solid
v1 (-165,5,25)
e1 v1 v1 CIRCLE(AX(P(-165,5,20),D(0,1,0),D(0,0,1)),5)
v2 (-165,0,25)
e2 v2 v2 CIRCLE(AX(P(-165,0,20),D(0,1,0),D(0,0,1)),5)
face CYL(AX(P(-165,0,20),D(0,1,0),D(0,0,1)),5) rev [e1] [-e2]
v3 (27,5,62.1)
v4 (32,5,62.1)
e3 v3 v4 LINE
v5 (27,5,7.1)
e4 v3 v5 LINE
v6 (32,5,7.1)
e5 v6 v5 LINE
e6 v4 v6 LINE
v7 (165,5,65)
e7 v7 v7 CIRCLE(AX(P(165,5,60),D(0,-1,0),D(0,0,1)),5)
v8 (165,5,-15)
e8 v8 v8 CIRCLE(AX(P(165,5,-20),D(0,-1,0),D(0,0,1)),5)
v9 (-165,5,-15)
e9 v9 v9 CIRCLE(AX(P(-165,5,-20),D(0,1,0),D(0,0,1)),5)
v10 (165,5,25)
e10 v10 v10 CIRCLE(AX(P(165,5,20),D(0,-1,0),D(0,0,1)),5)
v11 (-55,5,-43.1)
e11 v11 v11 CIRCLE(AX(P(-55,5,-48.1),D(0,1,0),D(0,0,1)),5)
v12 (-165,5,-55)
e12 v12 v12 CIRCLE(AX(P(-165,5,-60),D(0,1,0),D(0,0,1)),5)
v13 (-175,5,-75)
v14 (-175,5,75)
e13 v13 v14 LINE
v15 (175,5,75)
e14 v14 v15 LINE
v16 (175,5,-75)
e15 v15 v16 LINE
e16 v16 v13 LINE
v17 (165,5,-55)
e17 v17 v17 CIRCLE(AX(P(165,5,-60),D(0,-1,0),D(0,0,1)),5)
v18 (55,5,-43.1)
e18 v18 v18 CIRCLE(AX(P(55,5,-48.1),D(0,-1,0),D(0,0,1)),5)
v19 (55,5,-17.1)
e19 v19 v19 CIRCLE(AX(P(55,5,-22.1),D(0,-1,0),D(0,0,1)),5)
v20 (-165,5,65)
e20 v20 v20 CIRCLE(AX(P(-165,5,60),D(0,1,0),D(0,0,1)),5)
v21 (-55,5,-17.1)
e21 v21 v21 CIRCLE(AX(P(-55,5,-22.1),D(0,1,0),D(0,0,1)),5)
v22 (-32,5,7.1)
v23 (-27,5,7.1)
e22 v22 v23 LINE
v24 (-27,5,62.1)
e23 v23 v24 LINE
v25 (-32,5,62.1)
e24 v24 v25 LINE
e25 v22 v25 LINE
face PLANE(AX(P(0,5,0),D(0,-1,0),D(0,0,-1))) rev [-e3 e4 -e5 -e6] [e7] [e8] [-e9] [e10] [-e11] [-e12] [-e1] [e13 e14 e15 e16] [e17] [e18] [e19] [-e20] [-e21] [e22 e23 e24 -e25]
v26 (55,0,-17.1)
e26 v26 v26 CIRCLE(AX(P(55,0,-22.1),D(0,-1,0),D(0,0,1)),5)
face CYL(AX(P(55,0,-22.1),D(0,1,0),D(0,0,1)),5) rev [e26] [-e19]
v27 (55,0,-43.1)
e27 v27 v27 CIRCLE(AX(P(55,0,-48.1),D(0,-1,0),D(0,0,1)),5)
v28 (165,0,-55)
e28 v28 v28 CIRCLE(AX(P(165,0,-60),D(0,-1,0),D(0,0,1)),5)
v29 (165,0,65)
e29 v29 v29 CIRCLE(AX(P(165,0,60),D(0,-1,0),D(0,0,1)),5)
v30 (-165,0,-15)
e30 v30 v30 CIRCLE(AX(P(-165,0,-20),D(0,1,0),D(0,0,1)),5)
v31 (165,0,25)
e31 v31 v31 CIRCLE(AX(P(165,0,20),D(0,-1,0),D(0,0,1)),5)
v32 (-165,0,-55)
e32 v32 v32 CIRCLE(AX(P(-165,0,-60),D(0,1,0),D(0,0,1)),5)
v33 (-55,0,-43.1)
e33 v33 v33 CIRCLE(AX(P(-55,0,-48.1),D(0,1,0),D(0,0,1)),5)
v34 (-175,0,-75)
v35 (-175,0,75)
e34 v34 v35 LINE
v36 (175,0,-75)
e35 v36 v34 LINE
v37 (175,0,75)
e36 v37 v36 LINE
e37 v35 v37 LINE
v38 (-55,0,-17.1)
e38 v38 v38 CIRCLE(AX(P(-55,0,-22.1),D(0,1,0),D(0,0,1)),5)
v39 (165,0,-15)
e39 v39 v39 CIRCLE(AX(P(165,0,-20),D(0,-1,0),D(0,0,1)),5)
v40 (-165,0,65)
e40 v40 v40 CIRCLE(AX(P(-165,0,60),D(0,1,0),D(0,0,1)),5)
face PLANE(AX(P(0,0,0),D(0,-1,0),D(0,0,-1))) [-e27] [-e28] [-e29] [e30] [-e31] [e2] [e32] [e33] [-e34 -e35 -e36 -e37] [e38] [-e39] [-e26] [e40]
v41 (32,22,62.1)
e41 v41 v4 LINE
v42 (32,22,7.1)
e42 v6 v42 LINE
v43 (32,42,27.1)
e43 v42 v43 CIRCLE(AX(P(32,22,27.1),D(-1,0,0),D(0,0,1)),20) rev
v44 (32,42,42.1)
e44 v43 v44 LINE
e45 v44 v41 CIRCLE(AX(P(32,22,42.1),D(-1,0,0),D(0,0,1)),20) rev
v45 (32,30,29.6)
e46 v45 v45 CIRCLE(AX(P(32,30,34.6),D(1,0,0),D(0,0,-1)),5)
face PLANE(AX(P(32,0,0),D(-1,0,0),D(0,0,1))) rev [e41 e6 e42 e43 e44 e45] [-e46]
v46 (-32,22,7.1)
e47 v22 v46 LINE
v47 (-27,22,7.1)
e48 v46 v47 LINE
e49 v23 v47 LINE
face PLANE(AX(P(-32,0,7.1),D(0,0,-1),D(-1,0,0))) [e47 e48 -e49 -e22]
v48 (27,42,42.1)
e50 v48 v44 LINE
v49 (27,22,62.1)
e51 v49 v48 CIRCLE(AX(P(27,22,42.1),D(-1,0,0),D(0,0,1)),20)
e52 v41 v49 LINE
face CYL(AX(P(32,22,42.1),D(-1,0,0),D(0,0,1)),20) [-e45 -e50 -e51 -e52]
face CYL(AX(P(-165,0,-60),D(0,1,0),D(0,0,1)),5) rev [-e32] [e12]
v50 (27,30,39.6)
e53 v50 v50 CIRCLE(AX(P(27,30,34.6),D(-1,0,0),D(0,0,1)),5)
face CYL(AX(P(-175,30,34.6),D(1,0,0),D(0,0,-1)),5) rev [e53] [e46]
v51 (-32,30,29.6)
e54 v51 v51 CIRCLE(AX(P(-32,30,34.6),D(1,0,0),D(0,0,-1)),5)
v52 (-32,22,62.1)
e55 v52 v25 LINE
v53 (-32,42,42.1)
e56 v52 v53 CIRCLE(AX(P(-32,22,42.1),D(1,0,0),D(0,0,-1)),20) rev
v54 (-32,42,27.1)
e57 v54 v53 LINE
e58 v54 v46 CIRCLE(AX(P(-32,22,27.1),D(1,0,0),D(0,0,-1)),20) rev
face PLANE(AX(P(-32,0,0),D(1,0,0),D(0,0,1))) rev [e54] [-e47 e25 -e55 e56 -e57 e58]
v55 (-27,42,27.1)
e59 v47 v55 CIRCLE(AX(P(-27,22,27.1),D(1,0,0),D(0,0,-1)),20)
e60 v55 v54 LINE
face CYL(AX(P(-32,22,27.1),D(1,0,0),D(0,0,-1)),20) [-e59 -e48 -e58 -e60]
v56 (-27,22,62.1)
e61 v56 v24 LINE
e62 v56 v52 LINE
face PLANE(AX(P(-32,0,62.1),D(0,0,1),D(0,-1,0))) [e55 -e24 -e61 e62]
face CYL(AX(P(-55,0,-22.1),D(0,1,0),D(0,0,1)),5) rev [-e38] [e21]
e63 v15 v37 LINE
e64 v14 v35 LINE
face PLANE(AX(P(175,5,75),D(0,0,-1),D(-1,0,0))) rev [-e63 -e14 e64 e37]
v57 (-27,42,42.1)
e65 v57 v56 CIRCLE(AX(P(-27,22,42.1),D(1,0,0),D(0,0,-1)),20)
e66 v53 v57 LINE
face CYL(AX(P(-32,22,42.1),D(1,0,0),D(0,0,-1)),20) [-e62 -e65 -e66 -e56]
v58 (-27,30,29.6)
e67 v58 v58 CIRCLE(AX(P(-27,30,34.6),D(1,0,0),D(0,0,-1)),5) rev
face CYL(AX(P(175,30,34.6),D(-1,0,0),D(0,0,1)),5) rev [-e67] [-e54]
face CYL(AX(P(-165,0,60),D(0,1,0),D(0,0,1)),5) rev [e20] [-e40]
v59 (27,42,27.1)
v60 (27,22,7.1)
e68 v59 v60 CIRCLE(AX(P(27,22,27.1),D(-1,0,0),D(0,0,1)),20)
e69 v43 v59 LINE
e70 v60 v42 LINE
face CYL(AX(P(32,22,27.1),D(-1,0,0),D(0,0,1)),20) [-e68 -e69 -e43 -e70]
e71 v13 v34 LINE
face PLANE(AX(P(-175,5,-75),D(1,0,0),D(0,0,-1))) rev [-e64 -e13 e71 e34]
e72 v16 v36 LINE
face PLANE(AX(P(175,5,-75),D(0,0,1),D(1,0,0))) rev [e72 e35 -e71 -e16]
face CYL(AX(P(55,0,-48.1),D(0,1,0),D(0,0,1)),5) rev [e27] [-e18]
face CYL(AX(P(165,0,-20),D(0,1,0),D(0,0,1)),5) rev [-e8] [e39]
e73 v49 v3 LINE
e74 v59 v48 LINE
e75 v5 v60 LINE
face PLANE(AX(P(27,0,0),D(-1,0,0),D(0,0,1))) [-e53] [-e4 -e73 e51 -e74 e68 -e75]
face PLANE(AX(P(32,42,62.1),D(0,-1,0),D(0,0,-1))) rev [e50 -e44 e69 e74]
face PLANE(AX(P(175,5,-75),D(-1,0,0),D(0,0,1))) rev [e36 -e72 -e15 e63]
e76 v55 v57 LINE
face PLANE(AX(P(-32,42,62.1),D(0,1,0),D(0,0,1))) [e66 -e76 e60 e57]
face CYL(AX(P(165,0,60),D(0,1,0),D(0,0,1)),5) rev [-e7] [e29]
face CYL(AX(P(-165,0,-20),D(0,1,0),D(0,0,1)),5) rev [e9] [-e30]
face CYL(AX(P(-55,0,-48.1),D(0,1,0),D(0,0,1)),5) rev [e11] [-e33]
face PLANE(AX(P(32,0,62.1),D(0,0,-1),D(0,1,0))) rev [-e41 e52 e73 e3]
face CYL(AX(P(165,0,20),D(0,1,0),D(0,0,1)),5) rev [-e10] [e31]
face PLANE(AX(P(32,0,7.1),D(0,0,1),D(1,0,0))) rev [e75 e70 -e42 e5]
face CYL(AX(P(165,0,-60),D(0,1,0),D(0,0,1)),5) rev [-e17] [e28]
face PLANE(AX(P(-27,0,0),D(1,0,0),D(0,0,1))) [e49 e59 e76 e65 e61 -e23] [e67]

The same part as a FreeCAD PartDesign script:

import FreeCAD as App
import Part
import Sketcher

V = App.Vector
Q = App.Units.Quantity


def edges_at(feature, points):
    """Names of the edges that pass closest to the given points."""
    edges = feature.Shape.Edges
    near = lambda p: min(range(len(edges)), key=lambda i: edges[i].distToShape(Part.Vertex(*p))[0])
    return sorted({f"Edge{near(p) + 1}" for p in points})

doc = App.newDocument("Part")
params = doc.addObject("Spreadsheet::Sheet", "Params")
for row, (alias, value) in enumerate([
    ("sketch1_width", "350 mm"),
    ("sketch1_height", "150 mm"),
    ("pad1_length", "5 mm"),
    ("sketch2_width", "42 mm"),
    ("sketch2_height", "55 mm"),
    ("pad2_length", "5 mm"),
    ("sketch3_diameter", "10 mm"),
    ("fillet_radius", "20 mm"),
    ("fillet2_radius", "20 mm"),
    ("sketch4_diameter", "10 mm"),
    ("sketch5_diameter", "10 mm"),
], start=1):
    params.set(f"A{row}", alias)
    params.set(f"B{row}", "=" + value)
    params.setAlias(f"B{row}", alias)

body = doc.addObject("PartDesign::Body", "Body")

sketch1 = doc.addObject("Sketcher::SketchObject", "Sketch")
body.addObject(sketch1)
sketch1.AttachmentSupport = (doc.XZ_Plane, [""])
sketch1.MapMode = "FlatFace"
sketch1.addGeometry([
    Part.LineSegment(V(-175, -75, 0), V(-175, 75, 0)),
    Part.LineSegment(V(-175, 75, 0), V(175, 75, 0)),
    Part.LineSegment(V(175, 75, 0), V(175, -75, 0)),
    Part.LineSegment(V(175, -75, 0), V(-175, -75, 0)),
], False)
sketch1.addConstraint([
    Sketcher.Constraint("Coincident", 0, 2, 1, 1),
    Sketcher.Constraint("Coincident", 1, 2, 2, 1),
    Sketcher.Constraint("Coincident", 2, 2, 3, 1),
    Sketcher.Constraint("Coincident", 3, 2, 0, 1),
    Sketcher.Constraint("Vertical", 0),
    Sketcher.Constraint("Horizontal", 1),
    Sketcher.Constraint("Vertical", 2),
    Sketcher.Constraint("Horizontal", 3),
    Sketcher.Constraint("Symmetric", 0, 2, 2, 2, -1, 1),
    Sketcher.Constraint("DistanceX", 1, 1, 1, 2, Q("350 mm")),
    Sketcher.Constraint("DistanceY", 0, 1, 0, 2, Q("150 mm")),
])
sketch1.setExpression("Constraints[9]", "Params.sketch1_width")
sketch1.setExpression("Constraints[10]", "Params.sketch1_height")
pad1 = doc.addObject("PartDesign::Pad", "Pad")
body.addObject(pad1)
pad1.Profile = sketch1
pad1.setExpression("Length", "Params.pad1_length")
pad1.Reversed = True

sketch2 = doc.addObject("Sketcher::SketchObject", "Sketch001")
body.addObject(sketch2)
sketch2.AttachmentSupport = (doc.YZ_Plane, [""])
sketch2.MapMode = "FlatFace"
sketch2.AttachmentOffset = App.Placement(V(0, 0, 27), App.Rotation())
sketch2.addGeometry([
    Part.LineSegment(V(42, 62, 0), V(0, 62, 0)),
    Part.LineSegment(V(0, 62, 0), V(0, 7, 0)),
    Part.LineSegment(V(0, 7, 0), V(42, 7, 0)),
    Part.LineSegment(V(42, 7, 0), V(42, 62, 0)),
], False)
sketch2.addConstraint([
    Sketcher.Constraint("Coincident", 0, 2, 1, 1),
    Sketcher.Constraint("Coincident", 1, 2, 2, 1),
    Sketcher.Constraint("Coincident", 2, 2, 3, 1),
    Sketcher.Constraint("Coincident", 3, 2, 0, 1),
    Sketcher.Constraint("Horizontal", 0),
    Sketcher.Constraint("Vertical", 1),
    Sketcher.Constraint("Horizontal", 2),
    Sketcher.Constraint("Vertical", 3),
    Sketcher.Constraint("PointOnObject", 0, 2, -2),
    Sketcher.Constraint("DistanceX", 0, 2, 0, 1, Q("42 mm")),
    Sketcher.Constraint("DistanceY", 1, 2, 1, 1, Q("55 mm")),
    Sketcher.Constraint("DistanceY", -1, 1, 0, 2, Q("62.1 mm")),
])
sketch2.setExpression("Constraints[9]", "Params.sketch2_width")
sketch2.setExpression("Constraints[10]", "Params.sketch2_height")
pad2 = doc.addObject("PartDesign::Pad", "Pad001")
body.addObject(pad2)
pad2.Profile = sketch2
pad2.setExpression("Length", "Params.pad2_length")

sketch3 = doc.addObject("Sketcher::SketchObject", "Sketch002")
body.addObject(sketch3)
sketch3.AttachmentSupport = (doc.YZ_Plane, [""])
sketch3.MapMode = "FlatFace"
sketch3.AttachmentOffset = App.Placement(V(0, 0, 32), App.Rotation())
sketch3.addGeometry(Part.Circle(V(30, 35, 0), V(0, 0, 1), 5), False)
sketch3.addConstraint([
    Sketcher.Constraint("Diameter", 0, Q("10 mm")),
    Sketcher.Constraint("DistanceX", -1, 1, 0, 3, Q("30 mm")),
    Sketcher.Constraint("DistanceY", -1, 1, 0, 3, Q("34.6 mm")),
])
sketch3.setExpression("Constraints[0]", "Params.sketch3_diameter")
pocket1 = doc.addObject("PartDesign::Pocket", "Pocket")
body.addObject(pocket1)
pocket1.Profile = sketch3
pocket1.Type = "ThroughAll"
doc.recompute()

fillet = doc.addObject("PartDesign::Fillet", "Fillet")
body.addObject(fillet)
fillet.Base = (pocket1, edges_at(pocket1, [(29.5, 42, 62.1), (29.5, 42, 7.1)]))
fillet.setExpression("Radius", "Params.fillet_radius")
doc.recompute()

mirrored = doc.addObject("PartDesign::Mirrored", "Mirrored")
body.addObject(mirrored)
mirrored.Originals = [pad2, pocket1]
mirrored.MirrorPlane = (doc.YZ_Plane, [""])
body.Tip = mirrored
doc.recompute()

fillet2 = doc.addObject("PartDesign::Fillet", "Fillet001")
body.addObject(fillet2)
fillet2.Base = (mirrored, edges_at(mirrored, [(-29.5, 42, 62.1), (-29.5, 42, 7.1)]))
fillet2.setExpression("Radius", "Params.fillet2_radius")

sketch4 = doc.addObject("Sketcher::SketchObject", "Sketch003")
body.addObject(sketch4)
sketch4.AttachmentSupport = (doc.XZ_Plane, [""])
sketch4.MapMode = "FlatFace"
sketch4.AttachmentOffset = App.Placement(V(0, 0, -5), App.Rotation())
sketch4.addGeometry([
    Part.Circle(V(-55, -48, 0), V(0, 0, 1), 5),
    Part.Circle(V(-55, -22, 0), V(0, 0, 1), 5),
], False)
sketch4.addConstraint([
    Sketcher.Constraint("Equal", 0, 1),
    Sketcher.Constraint("Vertical", 0, 3, 1, 3),
    Sketcher.Constraint("Diameter", 0, Q("10 mm")),
    Sketcher.Constraint("DistanceX", 0, 3, -1, 1, Q("55 mm")),
    Sketcher.Constraint("DistanceY", 0, 3, 1, 3, Q("26 mm")),
    Sketcher.Constraint("DistanceY", 0, 3, -1, 1, Q("48.1 mm")),
])
sketch4.setExpression("Constraints[2]", "Params.sketch4_diameter")
pocket2 = doc.addObject("PartDesign::Pocket", "Pocket001")
body.addObject(pocket2)
pocket2.Profile = sketch4
pocket2.Type = "ThroughAll"
pocket2.Reversed = True
doc.recompute()

mirrored2 = doc.addObject("PartDesign::Mirrored", "Mirrored001")
body.addObject(mirrored2)
mirrored2.Originals = [pocket2]
mirrored2.MirrorPlane = (doc.YZ_Plane, [""])
body.Tip = mirrored2

sketch5 = doc.addObject("Sketcher::SketchObject", "Sketch004")
body.addObject(sketch5)
sketch5.AttachmentSupport = (doc.XZ_Plane, [""])
sketch5.MapMode = "FlatFace"
sketch5.AttachmentOffset = App.Placement(V(0, 0, -5), App.Rotation())
sketch5.addGeometry([
    Part.Circle(V(-165, -60, 0), V(0, 0, 1), 5),
    Part.Circle(V(-165, -20, 0), V(0, 0, 1), 5),
    Part.Circle(V(-165, 20, 0), V(0, 0, 1), 5),
    Part.Circle(V(-165, 60, 0), V(0, 0, 1), 5),
], False)
sketch5.addConstraint([
    Sketcher.Constraint("Equal", 0, 1),
    Sketcher.Constraint("Equal", 1, 2),
    Sketcher.Constraint("Equal", 2, 3),
    Sketcher.Constraint("Symmetric", 1, 3, 2, 3, -1),
    Sketcher.Constraint("Symmetric", 0, 3, 3, 3, -1),
    Sketcher.Constraint("Vertical", 0, 3, 1, 3),
    Sketcher.Constraint("Diameter", 0, Q("10 mm")),
    Sketcher.Constraint("DistanceX", 0, 3, -1, 1, Q("165 mm")),
    Sketcher.Constraint("DistanceY", 0, 3, -1, 1, Q("60 mm")),
    Sketcher.Constraint("DistanceY", 1, 3, -1, 1, Q("20 mm")),
])
sketch5.setExpression("Constraints[6]", "Params.sketch5_diameter")
pocket3 = doc.addObject("PartDesign::Pocket", "Pocket002")
body.addObject(pocket3)
pocket3.Profile = sketch5
pocket3.Type = "ThroughAll"
pocket3.Reversed = True
doc.recompute()

mirrored3 = doc.addObject("PartDesign::Mirrored", "Mirrored002")
body.addObject(mirrored3)
mirrored3.Originals = [pocket3]
mirrored3.MirrorPlane = (doc.YZ_Plane, [""])
body.Tip = mirrored3

doc.recompute()
